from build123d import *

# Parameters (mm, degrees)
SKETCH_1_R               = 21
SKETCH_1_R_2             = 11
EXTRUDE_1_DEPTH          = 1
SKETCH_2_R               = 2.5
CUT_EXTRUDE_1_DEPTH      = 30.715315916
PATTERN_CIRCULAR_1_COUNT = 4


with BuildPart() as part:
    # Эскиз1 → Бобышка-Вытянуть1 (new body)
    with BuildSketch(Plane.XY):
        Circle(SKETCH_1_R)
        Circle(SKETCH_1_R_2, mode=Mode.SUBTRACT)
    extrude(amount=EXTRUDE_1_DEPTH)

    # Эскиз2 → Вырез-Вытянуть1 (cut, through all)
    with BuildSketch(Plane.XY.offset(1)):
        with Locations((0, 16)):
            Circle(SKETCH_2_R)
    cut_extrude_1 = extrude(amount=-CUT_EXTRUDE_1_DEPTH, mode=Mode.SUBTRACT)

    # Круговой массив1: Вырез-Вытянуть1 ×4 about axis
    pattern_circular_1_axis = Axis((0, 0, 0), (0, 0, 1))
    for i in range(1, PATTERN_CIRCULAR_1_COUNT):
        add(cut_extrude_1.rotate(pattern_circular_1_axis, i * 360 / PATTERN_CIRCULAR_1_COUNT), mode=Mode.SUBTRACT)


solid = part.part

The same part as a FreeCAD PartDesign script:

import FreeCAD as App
import Part
import Sketcher
Q = App.Units.Quantity

doc = App.newDocument("Part")
body = doc.addObject("PartDesign::Body", "Body")

# Sketch on XY plane
sketch1 = doc.addObject("Sketcher::SketchObject", "Sketch")
body.addObject(sketch1)
sketch1.AttachmentSupport = (doc.XY_Plane, [""])
sketch1.MapMode = "FlatFace"
sketch1.addGeometry(Part.Circle(App.Vector(0, 0, 0), App.Vector(0, 0, 1), 21), False)
sketch1.addGeometry(Part.Circle(App.Vector(0, 0, 0), App.Vector(0, 0, 1), 11), False)
sketch1.addConstraint(Sketcher.Constraint("Coincident", 0, 3, -1, 1))
sketch1.addConstraint(Sketcher.Constraint("Coincident", 1, 3, -1, 1))
sketch1.addConstraint(Sketcher.Constraint("Diameter", 0, Q("42 mm")))
sketch1.addConstraint(Sketcher.Constraint("Diameter", 1, Q("22 mm")))
pad1 = doc.addObject("PartDesign::Pad", "Pad")
body.addObject(pad1)
pad1.Profile = sketch1
pad1.Length = 1

# Sketch on XY plane
sketch2 = doc.addObject("Sketcher::SketchObject", "Sketch001")
body.addObject(sketch2)
sketch2.AttachmentSupport = (doc.XY_Plane, [""])
sketch2.MapMode = "FlatFace"
sketch2.AttachmentOffset = App.Placement(App.Vector(0, 0, 1), App.Rotation())
sketch2.addGeometry(Part.Circle(App.Vector(0, 16, 0), App.Vector(0, 0, 1), 2.5), False)
sketch2.addConstraint(Sketcher.Constraint("PointOnObject", 0, 3, -2))
sketch2.addConstraint(Sketcher.Constraint("Diameter", 0, Q("5 mm")))
sketch2.addConstraint(Sketcher.Constraint("DistanceY", -1, 1, 0, 3, Q("16 mm")))
pocket1 = doc.addObject("PartDesign::Pocket", "Pocket")
body.addObject(pocket1)
pocket1.Profile = sketch2
pocket1.Type = "ThroughAll"
doc.recompute()

polarpattern = doc.addObject("PartDesign::PolarPattern", "PolarPattern")
body.addObject(polarpattern)
polarpattern.Originals = [pocket1]
polarpattern.Axis = (doc.Z_Axis, [""])
polarpattern.Angle = 360
polarpattern.Occurrences = 4
body.Tip = polarpattern

doc.recompute()
